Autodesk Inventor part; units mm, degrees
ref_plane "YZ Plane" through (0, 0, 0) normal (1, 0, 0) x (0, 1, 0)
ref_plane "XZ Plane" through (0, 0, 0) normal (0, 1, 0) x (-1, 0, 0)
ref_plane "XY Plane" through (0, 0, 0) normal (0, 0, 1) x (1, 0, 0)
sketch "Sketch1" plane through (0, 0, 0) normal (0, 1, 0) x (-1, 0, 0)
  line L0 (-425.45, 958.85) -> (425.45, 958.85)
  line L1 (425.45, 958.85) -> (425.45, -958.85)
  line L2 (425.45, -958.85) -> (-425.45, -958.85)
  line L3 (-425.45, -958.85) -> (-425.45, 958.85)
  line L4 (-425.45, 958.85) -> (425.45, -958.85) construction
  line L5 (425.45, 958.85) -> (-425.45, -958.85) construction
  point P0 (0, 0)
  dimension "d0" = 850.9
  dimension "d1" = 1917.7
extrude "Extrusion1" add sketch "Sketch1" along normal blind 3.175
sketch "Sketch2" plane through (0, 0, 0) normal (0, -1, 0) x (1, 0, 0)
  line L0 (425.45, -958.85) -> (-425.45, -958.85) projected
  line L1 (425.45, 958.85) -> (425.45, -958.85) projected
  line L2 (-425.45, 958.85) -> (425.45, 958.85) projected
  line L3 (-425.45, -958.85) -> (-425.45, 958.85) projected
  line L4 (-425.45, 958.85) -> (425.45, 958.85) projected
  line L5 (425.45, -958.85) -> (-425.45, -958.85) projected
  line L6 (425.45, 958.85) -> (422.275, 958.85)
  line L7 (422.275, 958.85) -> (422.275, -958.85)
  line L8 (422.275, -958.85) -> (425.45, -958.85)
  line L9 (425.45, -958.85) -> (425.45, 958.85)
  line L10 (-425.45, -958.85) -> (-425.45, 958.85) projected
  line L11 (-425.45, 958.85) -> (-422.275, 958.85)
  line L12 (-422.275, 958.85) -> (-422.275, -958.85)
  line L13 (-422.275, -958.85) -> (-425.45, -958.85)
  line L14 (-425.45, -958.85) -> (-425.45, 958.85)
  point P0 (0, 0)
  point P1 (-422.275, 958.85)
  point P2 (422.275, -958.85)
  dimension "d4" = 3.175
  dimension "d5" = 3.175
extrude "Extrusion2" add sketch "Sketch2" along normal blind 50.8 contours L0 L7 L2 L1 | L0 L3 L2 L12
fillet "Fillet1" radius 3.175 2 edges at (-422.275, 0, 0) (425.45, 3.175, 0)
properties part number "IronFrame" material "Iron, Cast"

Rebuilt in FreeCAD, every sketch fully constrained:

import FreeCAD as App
import Part
import Sketcher
Q = App.Units.Quantity


def edges_at(feature, points):
    """Names of the edges that pass closest to the given points."""
    edges = feature.Shape.Edges
    near = lambda p: min(range(len(edges)), key=lambda i: edges[i].distToShape(Part.Vertex(*p))[0])
    return sorted({f"Edge{near(p) + 1}" for p in points})


def add_polygon(sketch, points):
    """Adds a closed chain of lines whose ends are joined by coincident constraints."""
    first, n = sketch.GeometryCount, len(points)
    for a, b in zip(points, points[1:] + points[:1]):
        sketch.addGeometry(Part.LineSegment(App.Vector(*a, 0), App.Vector(*b, 0)), False)
    for i in range(n):
        sketch.addConstraint(Sketcher.Constraint("Coincident", first + i, 2, first + (i + 1) % n, 1))

doc = App.newDocument("Part")
body = doc.addObject("PartDesign::Body", "Body")

sketch1 = body.newObject("Sketcher::SketchObject", "Sketch")
sketch1.AttachmentSupport = (doc.getObject("XZ_Plane"), [""])
sketch1.MapMode = "FlatFace"
add_polygon(sketch1, [(-425, 959), (425, 959), (425, -959), (-425, -959)])
sketch1.addConstraint([
    Sketcher.Constraint("Horizontal", 0),
    Sketcher.Constraint("Vertical", 1),
    Sketcher.Constraint("Horizontal", 2),
    Sketcher.Constraint("Vertical", 3),
    Sketcher.Constraint("Symmetric", 0, 2, 2, 2, -1, 1),
    Sketcher.Constraint("DistanceX", 0, 1, 0, 2, Q("33.5 in")),
    Sketcher.Constraint("DistanceY", 1, 2, 1, 1, Q("75.5 in")),
])
pad1 = body.newObject("PartDesign::Pad", "Pad")
pad1.Profile = sketch1
pad1.Length = Q("0.125 in")
pad1.Reversed = True

sketch2 = body.newObject("Sketcher::SketchObject", "Sketch001")
sketch2.AttachmentSupport = (doc.getObject("XZ_Plane"), [""])
sketch2.MapMode = "FlatFace"
add_polygon(sketch2, [(422.3, -958.9), (425.4, -958.9), (425.4, 958.9), (422.3, 958.9)])
add_polygon(sketch2, [(-425.4, -958.9), (-422.3, -958.9), (-422.3, 958.9), (-425.4, 958.9)])
sketch2.addConstraint([
    Sketcher.Constraint("Horizontal", 0),
    Sketcher.Constraint("Vertical", 1),
    Sketcher.Constraint("Horizontal", 2),
    Sketcher.Constraint("Vertical", 3),
    Sketcher.Constraint("Horizontal", 4),
    Sketcher.Constraint("Vertical", 5),
    Sketcher.Constraint("Horizontal", 6),
    Sketcher.Constraint("Vertical", 7),
    Sketcher.Constraint("Symmetric", 2, 2, 4, 2, -1, 1),
    Sketcher.Constraint("Symmetric", 0, 2, 6, 2, -1, 1),
    Sketcher.Constraint("Horizontal", 3, 2, 4, 2),
    Sketcher.Constraint("DistanceX", 0, 1, 0, 2, Q("0.125 in")),
    Sketcher.Constraint("DistanceY", 1, 1, 1, 2, Q("75.5 in")),
    Sketcher.Constraint("DistanceX", 6, 2, 1, 2, Q("33.5 in")),
])
pad2 = body.newObject("PartDesign::Pad", "Pad001")
pad2.Profile = sketch2
pad2.Length = Q("2 in")
doc.recompute()

fillet = body.newObject("PartDesign::Fillet", "Fillet")
fillet.Base = (pad2, edges_at(pad2, [(-422.275, 0, 0), (425.45, 3.175, 0)]))
fillet.Radius = Q("0.125 in")

doc.recompute()
